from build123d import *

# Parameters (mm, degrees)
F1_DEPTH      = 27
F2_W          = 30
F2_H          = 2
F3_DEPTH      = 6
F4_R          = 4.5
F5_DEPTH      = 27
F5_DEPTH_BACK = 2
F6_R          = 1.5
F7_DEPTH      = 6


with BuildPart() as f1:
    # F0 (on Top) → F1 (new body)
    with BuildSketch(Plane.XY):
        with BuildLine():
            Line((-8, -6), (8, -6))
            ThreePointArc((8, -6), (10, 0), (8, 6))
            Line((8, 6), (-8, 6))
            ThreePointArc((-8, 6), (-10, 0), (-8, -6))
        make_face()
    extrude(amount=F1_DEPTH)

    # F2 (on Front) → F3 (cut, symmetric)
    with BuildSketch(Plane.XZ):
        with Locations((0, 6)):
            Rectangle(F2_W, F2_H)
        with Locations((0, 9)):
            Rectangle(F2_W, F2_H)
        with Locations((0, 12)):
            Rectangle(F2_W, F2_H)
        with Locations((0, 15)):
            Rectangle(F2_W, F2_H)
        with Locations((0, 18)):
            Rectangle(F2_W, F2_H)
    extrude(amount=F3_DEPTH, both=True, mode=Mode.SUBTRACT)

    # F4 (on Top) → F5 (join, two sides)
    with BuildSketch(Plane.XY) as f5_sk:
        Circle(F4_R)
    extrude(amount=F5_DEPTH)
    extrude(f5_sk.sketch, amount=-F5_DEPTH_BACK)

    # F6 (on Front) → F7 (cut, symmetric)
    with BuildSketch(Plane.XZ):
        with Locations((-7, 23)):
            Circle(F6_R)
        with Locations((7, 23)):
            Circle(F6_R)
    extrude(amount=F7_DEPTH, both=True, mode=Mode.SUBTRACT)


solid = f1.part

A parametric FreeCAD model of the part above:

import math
import FreeCAD as App
import Part
import Sketcher
from FreeCAD import Vector
Q = App.Units.Quantity


def add_polygon(sketch, points):
    """Adds a closed chain of lines whose ends are joined by coincident constraints."""
    first, n = sketch.GeometryCount, len(points)
    for a, b in zip(points, points[1:] + points[:1]):
        sketch.addGeometry(Part.LineSegment(App.Vector(*a, 0), App.Vector(*b, 0)), False)
    for i in range(n):
        sketch.addConstraint(Sketcher.Constraint("Coincident", first + i, 2, first + (i + 1) % n, 1))

doc = App.newDocument("Part")
body = doc.addObject("PartDesign::Body", "Body")
body.AllowCompound = True

sketch1 = body.newObject("Sketcher::SketchObject", "Sketch")
sketch1.AttachmentSupport = (doc.getObject("XY_Plane"), [""])
sketch1.MapMode = "FlatFace"
sketch1.addGeometry([
    Part.LineSegment(Vector(-8, -6, 0), Vector(8, -6, 0)),
    Part.ArcOfCircle(Part.Circle(Vector(0, 0, 0), Vector(0, 0, 1), 10), math.radians(-37), math.radians(37)),
    Part.LineSegment(Vector(8, 6, 0), Vector(-8, 6, 0)),
    Part.ArcOfCircle(Part.Circle(Vector(0, 0, 0), Vector(0, 0, 1), 10), math.radians(143), math.radians(217)),
], False)
sketch1.addConstraint([
    Sketcher.Constraint("Coincident", 0, 2, 1, 1),
    Sketcher.Constraint("Coincident", 1, 2, 2, 1),
    Sketcher.Constraint("Coincident", 2, 2, 3, 1),
    Sketcher.Constraint("Coincident", 3, 2, 0, 1),
    Sketcher.Constraint("Horizontal", 0),
    Sketcher.Constraint("Horizontal", 2),
    Sketcher.Constraint("Coincident", 1, 3, -1, 1),
    Sketcher.Constraint("Coincident", 3, 3, -1, 1),
    Sketcher.Constraint("Equal", 1, 3),
    Sketcher.Constraint("Vertical", 0, 2, 1, 2),
    Sketcher.Constraint("Radius", 1, Q("10 mm")),
    Sketcher.Constraint("DistanceX", 0, 1, 0, 2, Q("16 mm")),
])
pad1 = body.newObject("PartDesign::Pad", "Pad")
pad1.Profile = sketch1
pad1.Length = 27

sketch2 = body.newObject("Sketcher::SketchObject", "Sketch001")
sketch2.AttachmentSupport = (doc.getObject("XZ_Plane"), [""])
sketch2.MapMode = "FlatFace"
add_polygon(sketch2, [(-15, 7), (-15, 5), (15, 5), (15, 7)])
add_polygon(sketch2, [(-15, 10), (-15, 8), (15, 8), (15, 10)])
add_polygon(sketch2, [(-15, 13), (-15, 11), (15, 11), (15, 13)])
add_polygon(sketch2, [(-15, 16), (-15, 14), (15, 14), (15, 16)])
add_polygon(sketch2, [(-15, 19), (-15, 17), (15, 17), (15, 19)])
sketch2.addConstraint([
    Sketcher.Constraint("Vertical", 0),
    Sketcher.Constraint("Horizontal", 1),
    Sketcher.Constraint("Vertical", 2),
    Sketcher.Constraint("Horizontal", 3),
    Sketcher.Constraint("Vertical", 4),
    Sketcher.Constraint("Horizontal", 5),
    Sketcher.Constraint("Vertical", 6),
    Sketcher.Constraint("Horizontal", 7),
    Sketcher.Constraint("Vertical", 8),
    Sketcher.Constraint("Horizontal", 9),
    Sketcher.Constraint("Vertical", 10),
    Sketcher.Constraint("Horizontal", 11),
    Sketcher.Constraint("Vertical", 12),
    Sketcher.Constraint("Horizontal", 13),
    Sketcher.Constraint("Vertical", 14),
    Sketcher.Constraint("Horizontal", 15),
    Sketcher.Constraint("Vertical", 16),
    Sketcher.Constraint("Horizontal", 17),
    Sketcher.Constraint("Vertical", 18),
    Sketcher.Constraint("Horizontal", 19),
    Sketcher.Constraint("Vertical", 3, 2, 4, 2),
    Sketcher.Constraint("Vertical", 2, 2, 5, 2),
    Sketcher.Constraint("Vertical", 7, 2, 8, 2),
    Sketcher.Constraint("Vertical", 6, 2, 9, 2),
    Sketcher.Constraint("Vertical", 11, 2, 12, 2),
    Sketcher.Constraint("Vertical", 10, 2, 13, 2),
    Sketcher.Constraint("Vertical", 15, 2, 16, 2),
    Sketcher.Constraint("Vertical", 14, 2, 17, 2),
    Sketcher.Constraint("Equal", 2, 4),
    Sketcher.Constraint("Equal", 6, 8),
    Sketcher.Constraint("Equal", 10, 12),
    Sketcher.Constraint("Equal", 14, 16),
    Sketcher.Constraint("DistanceX", 1, 1, 1, 2, Q("30 mm")),
    Sketcher.Constraint("DistanceY", 0, 2, 0, 1, Q("2 mm")),
    Sketcher.Constraint("DistanceX", 0, 2, -1, 1, Q("15 mm")),
    Sketcher.Constraint("DistanceY", -1, 1, 0, 2, Q("5 mm")),
    Sketcher.Constraint("DistanceY", -1, 1, 4, 2, Q("8 mm")),
    Sketcher.Constraint("DistanceY", -1, 1, 8, 2, Q("11 mm")),
    Sketcher.Constraint("DistanceY", -1, 1, 12, 2, Q("14 mm")),
    Sketcher.Constraint("DistanceY", -1, 1, 16, 2, Q("17 mm")),
])
pocket1 = body.newObject("PartDesign::Pocket", "Pocket")
pocket1.Profile = sketch2
pocket1.Length = 12
pocket1.Midplane = True

sketch3 = body.newObject("Sketcher::SketchObject", "Sketch002")
sketch3.AttachmentSupport = (doc.getObject("XY_Plane"), [""])
sketch3.MapMode = "FlatFace"
sketch3.addGeometry(Part.Circle(Vector(0, 0, 0), Vector(0, 0, 1), 4.5), False)
sketch3.addConstraint([
    Sketcher.Constraint("Coincident", 0, 3, -1, 1),
    Sketcher.Constraint("Diameter", 0, Q("9 mm")),
])
pad2 = body.newObject("PartDesign::Pad", "Pad001")
pad2.Profile = sketch3
pad2.Type = "TwoLengths"
pad2.Length = 27
pad2.Length2 = 2

sketch4 = body.newObject("Sketcher::SketchObject", "Sketch003")
sketch4.AttachmentSupport = (doc.getObject("XZ_Plane"), [""])
sketch4.MapMode = "FlatFace"
sketch4.addGeometry([
    Part.Circle(Vector(-7, 23, 0), Vector(0, 0, 1), 1.5),
    Part.Circle(Vector(7, 23, 0), Vector(0, 0, 1), 1.5),
], False)
sketch4.addConstraint([
    Sketcher.Constraint("Equal", 0, 1),
    Sketcher.Constraint("Symmetric", 0, 3, 1, 3, -2),
    Sketcher.Constraint("Diameter", 0, Q("3 mm")),
    Sketcher.Constraint("DistanceX", 0, 3, -1, 1, Q("7 mm")),
    Sketcher.Constraint("DistanceY", -1, 1, 0, 3, Q("23 mm")),
])
pocket2 = body.newObject("PartDesign::Pocket", "Pocket001")
pocket2.Profile = sketch4
pocket2.Length = 12
pocket2.Midplane = True

doc.recompute()
